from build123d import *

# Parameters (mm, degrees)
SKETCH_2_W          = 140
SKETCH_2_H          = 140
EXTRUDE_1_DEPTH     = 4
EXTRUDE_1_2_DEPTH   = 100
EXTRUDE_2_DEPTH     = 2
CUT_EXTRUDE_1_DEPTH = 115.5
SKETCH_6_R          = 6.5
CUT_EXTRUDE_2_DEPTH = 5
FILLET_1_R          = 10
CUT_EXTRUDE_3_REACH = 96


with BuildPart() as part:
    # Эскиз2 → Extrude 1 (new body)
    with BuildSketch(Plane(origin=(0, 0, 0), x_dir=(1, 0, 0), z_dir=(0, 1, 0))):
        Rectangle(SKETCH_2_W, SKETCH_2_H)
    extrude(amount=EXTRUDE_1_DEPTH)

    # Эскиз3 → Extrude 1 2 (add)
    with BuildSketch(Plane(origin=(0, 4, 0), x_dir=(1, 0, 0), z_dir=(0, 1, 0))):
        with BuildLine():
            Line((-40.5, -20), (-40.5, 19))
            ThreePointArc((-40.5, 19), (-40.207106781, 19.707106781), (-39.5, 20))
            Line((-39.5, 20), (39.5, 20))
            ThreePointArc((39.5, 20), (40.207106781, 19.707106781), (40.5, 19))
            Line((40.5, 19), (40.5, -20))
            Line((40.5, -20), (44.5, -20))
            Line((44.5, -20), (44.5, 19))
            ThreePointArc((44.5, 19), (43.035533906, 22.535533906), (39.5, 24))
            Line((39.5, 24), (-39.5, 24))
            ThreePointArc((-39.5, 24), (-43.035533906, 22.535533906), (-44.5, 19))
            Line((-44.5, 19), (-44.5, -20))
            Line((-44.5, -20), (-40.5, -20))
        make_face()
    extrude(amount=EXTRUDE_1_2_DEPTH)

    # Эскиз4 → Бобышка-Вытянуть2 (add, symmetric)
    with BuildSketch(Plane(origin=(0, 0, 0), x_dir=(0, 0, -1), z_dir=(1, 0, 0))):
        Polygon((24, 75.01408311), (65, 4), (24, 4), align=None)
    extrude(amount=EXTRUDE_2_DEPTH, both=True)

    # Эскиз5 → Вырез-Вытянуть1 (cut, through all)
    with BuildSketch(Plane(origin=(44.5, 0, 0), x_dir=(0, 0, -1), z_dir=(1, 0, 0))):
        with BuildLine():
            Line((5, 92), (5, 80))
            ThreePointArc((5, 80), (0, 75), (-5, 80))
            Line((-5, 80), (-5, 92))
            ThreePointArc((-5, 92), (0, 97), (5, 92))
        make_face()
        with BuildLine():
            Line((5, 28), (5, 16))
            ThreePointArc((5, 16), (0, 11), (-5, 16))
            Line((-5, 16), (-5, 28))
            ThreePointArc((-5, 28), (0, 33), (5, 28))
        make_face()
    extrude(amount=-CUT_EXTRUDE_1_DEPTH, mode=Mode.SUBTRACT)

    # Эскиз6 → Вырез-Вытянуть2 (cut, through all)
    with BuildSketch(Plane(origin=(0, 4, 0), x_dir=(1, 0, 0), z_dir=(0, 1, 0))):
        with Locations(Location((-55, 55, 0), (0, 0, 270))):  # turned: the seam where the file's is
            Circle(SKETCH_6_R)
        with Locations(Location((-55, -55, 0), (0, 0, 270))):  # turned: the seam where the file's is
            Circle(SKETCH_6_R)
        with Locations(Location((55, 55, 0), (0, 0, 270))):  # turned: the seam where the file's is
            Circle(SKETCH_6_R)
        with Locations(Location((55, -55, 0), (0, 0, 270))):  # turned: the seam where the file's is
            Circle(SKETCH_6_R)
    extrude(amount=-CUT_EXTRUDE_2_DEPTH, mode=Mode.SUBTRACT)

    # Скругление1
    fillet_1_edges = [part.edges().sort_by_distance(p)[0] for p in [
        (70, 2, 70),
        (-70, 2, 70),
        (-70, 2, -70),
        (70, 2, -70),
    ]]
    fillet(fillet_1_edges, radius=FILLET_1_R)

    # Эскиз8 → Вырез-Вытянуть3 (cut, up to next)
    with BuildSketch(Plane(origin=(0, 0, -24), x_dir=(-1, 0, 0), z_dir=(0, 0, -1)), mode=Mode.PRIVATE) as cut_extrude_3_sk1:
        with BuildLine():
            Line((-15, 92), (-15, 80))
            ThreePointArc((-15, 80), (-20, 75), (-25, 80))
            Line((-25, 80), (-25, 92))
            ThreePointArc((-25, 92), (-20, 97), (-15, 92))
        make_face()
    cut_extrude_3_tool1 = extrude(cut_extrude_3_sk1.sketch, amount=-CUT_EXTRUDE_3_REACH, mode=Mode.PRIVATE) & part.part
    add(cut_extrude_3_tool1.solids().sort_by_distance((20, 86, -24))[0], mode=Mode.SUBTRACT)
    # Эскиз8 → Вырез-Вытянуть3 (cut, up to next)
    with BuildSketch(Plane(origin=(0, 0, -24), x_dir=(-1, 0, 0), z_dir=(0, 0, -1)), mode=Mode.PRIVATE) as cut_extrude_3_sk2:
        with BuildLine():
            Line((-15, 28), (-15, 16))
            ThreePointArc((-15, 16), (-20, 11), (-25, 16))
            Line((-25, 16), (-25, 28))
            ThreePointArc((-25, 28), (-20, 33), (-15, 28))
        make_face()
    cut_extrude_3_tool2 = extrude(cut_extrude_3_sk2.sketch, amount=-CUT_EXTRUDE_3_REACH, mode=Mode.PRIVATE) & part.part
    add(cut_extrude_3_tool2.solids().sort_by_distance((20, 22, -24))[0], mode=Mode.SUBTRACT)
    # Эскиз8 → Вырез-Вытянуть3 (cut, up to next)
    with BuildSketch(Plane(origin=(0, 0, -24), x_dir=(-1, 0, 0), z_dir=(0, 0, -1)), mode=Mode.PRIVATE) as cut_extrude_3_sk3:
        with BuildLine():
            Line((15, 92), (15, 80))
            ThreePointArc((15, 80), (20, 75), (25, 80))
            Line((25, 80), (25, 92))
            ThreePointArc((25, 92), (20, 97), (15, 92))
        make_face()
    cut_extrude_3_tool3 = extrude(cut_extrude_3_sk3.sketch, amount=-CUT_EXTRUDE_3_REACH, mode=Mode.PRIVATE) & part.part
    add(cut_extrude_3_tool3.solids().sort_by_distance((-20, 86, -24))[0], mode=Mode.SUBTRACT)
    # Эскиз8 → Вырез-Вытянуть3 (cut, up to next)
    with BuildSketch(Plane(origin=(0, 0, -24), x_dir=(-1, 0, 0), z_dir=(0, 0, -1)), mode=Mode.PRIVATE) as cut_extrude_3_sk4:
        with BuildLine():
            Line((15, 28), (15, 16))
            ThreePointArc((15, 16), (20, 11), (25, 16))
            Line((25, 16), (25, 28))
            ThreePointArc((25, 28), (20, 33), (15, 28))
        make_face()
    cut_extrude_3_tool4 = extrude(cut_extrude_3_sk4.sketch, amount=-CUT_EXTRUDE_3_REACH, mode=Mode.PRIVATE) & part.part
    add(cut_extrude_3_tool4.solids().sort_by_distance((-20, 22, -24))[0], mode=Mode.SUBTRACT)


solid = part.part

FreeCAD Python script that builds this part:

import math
import FreeCAD as App
import Part
import Sketcher
Q = App.Units.Quantity


def edges_at(feature, points):
    """Names of the edges that pass closest to the given points."""
    edges = feature.Shape.Edges
    near = lambda p: min(range(len(edges)), key=lambda i: edges[i].distToShape(Part.Vertex(*p))[0])
    return sorted({f"Edge{near(p) + 1}" for p in points})

doc = App.newDocument("Part")
body = doc.addObject("PartDesign::Body", "Body")

sketch1 = body.newObject("Sketcher::SketchObject", "Sketch")
sketch1.AttachmentSupport = (doc.getObject("XZ_Plane"), [""])
sketch1.MapMode = "FlatFace"
sketch1.addGeometry([
    Part.LineSegment(App.Vector(-70, -70, 0), App.Vector(-70, 70, 0)),
    Part.LineSegment(App.Vector(-70, 70, 0), App.Vector(70, 70, 0)),
    Part.LineSegment(App.Vector(70, 70, 0), App.Vector(70, -70, 0)),
    Part.LineSegment(App.Vector(70, -70, 0), App.Vector(-70, -70, 0)),
], False)
sketch1.addConstraint([
    Sketcher.Constraint("Coincident", 0, 2, 1, 1),
    Sketcher.Constraint("Coincident", 1, 2, 2, 1),
    Sketcher.Constraint("Coincident", 2, 2, 3, 1),
    Sketcher.Constraint("Coincident", 3, 2, 0, 1),
    Sketcher.Constraint("Vertical", 0),
    Sketcher.Constraint("Horizontal", 1),
    Sketcher.Constraint("Vertical", 2),
    Sketcher.Constraint("Horizontal", 3),
    Sketcher.Constraint("Symmetric", 0, 2, 2, 2, -1, 1),
    Sketcher.Constraint("Equal", 3, 0),
    Sketcher.Constraint("DistanceX", 1, 1, 1, 2, 140.0),
])
pad1 = body.newObject("PartDesign::Pad", "Pad")
pad1.Profile = sketch1
pad1.Length = 4
pad1.Reversed = True

sketch2 = body.newObject("Sketcher::SketchObject", "Sketch001")
sketch2.AttachmentSupport = (doc.getObject("XZ_Plane"), [""])
sketch2.MapMode = "FlatFace"
sketch2.AttachmentOffset = App.Placement(App.Vector(0, 0, -4), App.Rotation())
sketch2.addGeometry([
    Part.LineSegment(App.Vector(-40.5, 20, 0), App.Vector(-40.5, -19, 0)),
    Part.ArcOfCircle(Part.Circle(App.Vector(-39.5, -19, 0), App.Vector(0, 0, 1), 1), math.radians(-180), math.radians(-90)),
    Part.LineSegment(App.Vector(-39.5, -20, 0), App.Vector(39.5, -20, 0)),
    Part.ArcOfCircle(Part.Circle(App.Vector(39.5, -19, 0), App.Vector(0, 0, 1), 1), math.radians(-90), math.radians(0)),
    Part.LineSegment(App.Vector(40.5, -19, 0), App.Vector(40.5, 20, 0)),
    Part.LineSegment(App.Vector(40.5, 20, 0), App.Vector(44.5, 20, 0)),
    Part.LineSegment(App.Vector(44.5, 20, 0), App.Vector(44.5, -19, 0)),
    Part.ArcOfCircle(Part.Circle(App.Vector(39.5, -19, 0), App.Vector(0, 0, 1), 5), math.radians(-90), math.radians(0)),
    Part.LineSegment(App.Vector(39.5, -24, 0), App.Vector(-39.5, -24, 0)),
    Part.ArcOfCircle(Part.Circle(App.Vector(-39.5, -19, 0), App.Vector(0, 0, 1), 5), math.radians(180), math.radians(270)),
    Part.LineSegment(App.Vector(-44.5, -19, 0), App.Vector(-44.5, 20, 0)),
    Part.LineSegment(App.Vector(-44.5, 20, 0), App.Vector(-40.5, 20, 0)),
], False)
sketch2.addConstraint([
    Sketcher.Constraint("Tangent", 0, 2, 1, 1),
    Sketcher.Constraint("Tangent", 1, 2, 2, 1),
    Sketcher.Constraint("Tangent", 2, 2, 3, 1),
    Sketcher.Constraint("Tangent", 3, 2, 4, 1),
    Sketcher.Constraint("Coincident", 4, 2, 5, 1),
    Sketcher.Constraint("Coincident", 5, 2, 6, 1),
    Sketcher.Constraint("Tangent", 6, 2, 7, 2),
    Sketcher.Constraint("Tangent", 7, 1, 8, 1),
    Sketcher.Constraint("Tangent", 8, 2, 9, 2),
    Sketcher.Constraint("Tangent", 9, 1, 10, 1),
    Sketcher.Constraint("Coincident", 10, 2, 11, 1),
    Sketcher.Constraint("Coincident", 11, 2, 0, 1),
    Sketcher.Constraint("Vertical", 0),
    Sketcher.Constraint("Horizontal", 2),
    Sketcher.Constraint("Vertical", 4),
    Sketcher.Constraint("Horizontal", 5),
    Sketcher.Constraint("Vertical", 6),
    Sketcher.Constraint("Horizontal", 8),
    Sketcher.Constraint("Vertical", 10),
    Sketcher.Constraint("Horizontal", 11),
    Sketcher.Constraint("Coincident", 7, 3, 3, 3),
    Sketcher.Constraint("Coincident", 9, 3, 1, 3),
    Sketcher.Constraint("Equal", 1, 3),
    Sketcher.Constraint("Symmetric", 5, 2, 10, 2, -2),
    Sketcher.Constraint("Radius", 1, 1.0),
    Sketcher.Constraint("Radius", 7, 5.0),
    Sketcher.Constraint("DistanceX", 2, 1, 2, 2, 79.0),
    Sketcher.Constraint("DistanceY", 0, 2, 0, 1, 39.0),
    Sketcher.Constraint("DistanceY", 1, 3, -1, 1, 19.0),
])
pad2 = body.newObject("PartDesign::Pad", "Pad001")
pad2.Profile = sketch2
pad2.Length = 100
pad2.Reversed = True

sketch3 = body.newObject("Sketcher::SketchObject", "Sketch002")
sketch3.AttachmentSupport = (doc.getObject("YZ_Plane"), [""])
sketch3.MapMode = "FlatFace"
sketch3.addGeometry([
    Part.LineSegment(App.Vector(4, -65, 0), App.Vector(75, -24, 0)),
    Part.LineSegment(App.Vector(75, -24, 0), App.Vector(4, -24, 0)),
    Part.LineSegment(App.Vector(4, -24, 0), App.Vector(4, -65, 0)),
], False)
sketch3.addConstraint([
    Sketcher.Constraint("Coincident", 0, 2, 1, 1),
    Sketcher.Constraint("Coincident", 1, 2, 2, 1),
    Sketcher.Constraint("Coincident", 2, 2, 0, 1),
    Sketcher.Constraint("Horizontal", 1),
    Sketcher.Constraint("Vertical", 2),
    Sketcher.Constraint("DistanceY", 2, 2, 2, 1, 41.0),
    Sketcher.Constraint("Angle", 0, Q("30 deg")),
    Sketcher.Constraint("DistanceY", 0, 2, -1, 1, 24.0),
    Sketcher.Constraint("DistanceX", -1, 1, 1, 2, 4.0),
])
pad3 = body.newObject("PartDesign::Pad", "Pad002")
pad3.Profile = sketch3
pad3.Length = 4
pad3.Midplane = True

sketch4 = body.newObject("Sketcher::SketchObject", "Sketch003")
sketch4.AttachmentSupport = (doc.getObject("YZ_Plane"), [""])
sketch4.MapMode = "FlatFace"
sketch4.AttachmentOffset = App.Placement(App.Vector(0, 0, 44.5), App.Rotation())
sketch4.addGeometry([
    Part.LineSegment(App.Vector(80, -5, 0), App.Vector(92, -5, 0)),
    Part.ArcOfCircle(Part.Circle(App.Vector(92, 0, 0), App.Vector(0, 0, 1), 5), math.radians(-90), math.radians(90)),
    Part.LineSegment(App.Vector(92, 5, 0), App.Vector(80, 5, 0)),
    Part.ArcOfCircle(Part.Circle(App.Vector(80, 0, 0), App.Vector(0, 0, 1), 5), math.radians(90), math.radians(270)),
    Part.LineSegment(App.Vector(16, -5, 0), App.Vector(28, -5, 0)),
    Part.ArcOfCircle(Part.Circle(App.Vector(28, 0, 0), App.Vector(0, 0, 1), 5), math.radians(-90), math.radians(90)),
    Part.LineSegment(App.Vector(28, 5, 0), App.Vector(16, 5, 0)),
    Part.ArcOfCircle(Part.Circle(App.Vector(16, 0, 0), App.Vector(0, 0, 1), 5), math.radians(90), math.radians(270)),
], False)
sketch4.addConstraint([
    Sketcher.Constraint("Tangent", 0, 2, 1, 1),
    Sketcher.Constraint("Tangent", 1, 2, 2, 1),
    Sketcher.Constraint("Tangent", 2, 2, 3, 1),
    Sketcher.Constraint("Tangent", 3, 2, 0, 1),
    Sketcher.Constraint("Tangent", 4, 2, 5, 1),
    Sketcher.Constraint("Tangent", 5, 2, 6, 1),
    Sketcher.Constraint("Tangent", 6, 2, 7, 1),
    Sketcher.Constraint("Tangent", 7, 2, 4, 1),
    Sketcher.Constraint("Horizontal", 0),
    Sketcher.Constraint("Horizontal", 2),
    Sketcher.Constraint("Horizontal", 4),
    Sketcher.Constraint("Horizontal", 6),
    Sketcher.Constraint("Equal", 3, 5),
    Sketcher.Constraint("PointOnObject", 1, 3, -1),
    Sketcher.Constraint("PointOnObject", 5, 3, -1),
    Sketcher.Constraint("Equal", 2, 4),
    Sketcher.Constraint("Radius", 1, 5.0),
    Sketcher.Constraint("DistanceX", 0, 1, 0, 2, 12.0),
    Sketcher.Constraint("DistanceX", -1, 1, 1, 3, 92.0),
    Sketcher.Constraint("DistanceX", -1, 1, 5, 3, 28.0),
])
pocket1 = body.newObject("PartDesign::Pocket", "Pocket")
pocket1.Profile = sketch4
pocket1.Type = "ThroughAll"

sketch5 = body.newObject("Sketcher::SketchObject", "Sketch004")
sketch5.AttachmentSupport = (doc.getObject("XZ_Plane"), [""])
sketch5.MapMode = "FlatFace"
sketch5.AttachmentOffset = App.Placement(App.Vector(0, 0, -4), App.Rotation())
sketch5.addGeometry([
    Part.Circle(App.Vector(-55, -55, 0), App.Vector(0, 0, 1), 6),
    Part.Circle(App.Vector(-55, 55, 0), App.Vector(0, 0, 1), 6),
    Part.Circle(App.Vector(55, -55, 0), App.Vector(0, 0, 1), 6),
    Part.Circle(App.Vector(55, 55, 0), App.Vector(0, 0, 1), 6),
], False)
sketch5.addConstraint([
    Sketcher.Constraint("Equal", 0, 1),
    Sketcher.Constraint("Equal", 1, 2),
    Sketcher.Constraint("Equal", 2, 3),
    Sketcher.Constraint("Symmetric", 1, 3, 2, 3, -1, 1),
    Sketcher.Constraint("Symmetric", 0, 3, 3, 3, -1, 1),
    Sketcher.Constraint("Symmetric", 0, 3, 2, 3, -2),
    Sketcher.Constraint("Diameter", 0, 13.0),
    Sketcher.Constraint("DistanceX", 0, 3, -1, 1, 55.0),
    Sketcher.Constraint("DistanceY", 0, 3, -1, 1, 55.0),
])
pocket2 = body.newObject("PartDesign::Pocket", "Pocket001")
pocket2.Profile = sketch5
pocket2.Type = "ThroughAll"
pocket2.Reversed = True
doc.recompute()

fillet = body.newObject("PartDesign::Fillet", "Fillet")
fillet.Base = (pocket2, edges_at(pocket2, [
    (70, 2, 70),
    (-70, 2, 70),
    (-70, 2, -70),
    (70, 2, -70),
]))
fillet.Radius = 10

sketch6 = body.newObject("Sketcher::SketchObject", "Sketch005")
sketch6.AttachmentSupport = (doc.getObject("XY_Plane"), [""])
sketch6.MapMode = "FlatFace"
sketch6.AttachmentOffset = App.Placement(App.Vector(0, 0, -24), App.Rotation())
sketch6.addGeometry([
    Part.LineSegment(App.Vector(15, 80, 0), App.Vector(15, 92, 0)),
    Part.ArcOfCircle(Part.Circle(App.Vector(20, 92, 0), App.Vector(0, 0, 1), 5), math.radians(0), math.radians(180)),
    Part.LineSegment(App.Vector(25, 92, 0), App.Vector(25, 80, 0)),
    Part.ArcOfCircle(Part.Circle(App.Vector(20, 80, 0), App.Vector(0, 0, 1), 5), math.radians(180), math.radians(360)),
], False)
sketch6.addConstraint([
    Sketcher.Constraint("Tangent", 0, 2, 1, 2),
    Sketcher.Constraint("Tangent", 1, 1, 2, 1),
    Sketcher.Constraint("Tangent", 2, 2, 3, 2),
    Sketcher.Constraint("Tangent", 3, 1, 0, 1),
    Sketcher.Constraint("Vertical", 0),
    Sketcher.Constraint("Vertical", 2),
    Sketcher.Constraint("Radius", 1, 5.0),
    Sketcher.Constraint("DistanceY", 0, 1, 0, 2, 12.0),
    Sketcher.Constraint("DistanceX", -1, 1, 1, 3, 20.0),
    Sketcher.Constraint("DistanceY", -1, 1, 1, 3, 92.0),
])
pocket3 = body.newObject("PartDesign::Pocket", "Pocket002")
pocket3.Profile = sketch6
pocket3.Type = "UpToFirst"
pocket3.Reversed = True

sketch7 = body.newObject("Sketcher::SketchObject", "Sketch006")
sketch7.AttachmentSupport = (doc.getObject("XY_Plane"), [""])
sketch7.MapMode = "FlatFace"
sketch7.AttachmentOffset = App.Placement(App.Vector(0, 0, -24), App.Rotation())
sketch7.addGeometry([
    Part.LineSegment(App.Vector(15, 16, 0), App.Vector(15, 28, 0)),
    Part.ArcOfCircle(Part.Circle(App.Vector(20, 28, 0), App.Vector(0, 0, 1), 5), math.radians(0), math.radians(180)),
    Part.LineSegment(App.Vector(25, 28, 0), App.Vector(25, 16, 0)),
    Part.ArcOfCircle(Part.Circle(App.Vector(20, 16, 0), App.Vector(0, 0, 1), 5), math.radians(180), math.radians(360)),
], False)
sketch7.addConstraint([
    Sketcher.Constraint("Tangent", 0, 2, 1, 2),
    Sketcher.Constraint("Tangent", 1, 1, 2, 1),
    Sketcher.Constraint("Tangent", 2, 2, 3, 2),
    Sketcher.Constraint("Tangent", 3, 1, 0, 1),
    Sketcher.Constraint("Vertical", 0),
    Sketcher.Constraint("Vertical", 2),
    Sketcher.Constraint("Radius", 1, 5.0),
    Sketcher.Constraint("DistanceY", 0, 1, 0, 2, 12.0),
    Sketcher.Constraint("DistanceX", -1, 1, 1, 3, 20.0),
    Sketcher.Constraint("DistanceY", -1, 1, 1, 3, 28.0),
])
pocket4 = body.newObject("PartDesign::Pocket", "Pocket003")
pocket4.Profile = sketch7
pocket4.Type = "UpToFirst"
pocket4.Reversed = True

sketch8 = body.newObject("Sketcher::SketchObject", "Sketch007")
sketch8.AttachmentSupport = (doc.getObject("XY_Plane"), [""])
sketch8.MapMode = "FlatFace"
sketch8.AttachmentOffset = App.Placement(App.Vector(0, 0, -24), App.Rotation())
sketch8.addGeometry([
    Part.LineSegment(App.Vector(-15, 92, 0), App.Vector(-15, 80, 0)),
    Part.ArcOfCircle(Part.Circle(App.Vector(-20, 80, 0), App.Vector(0, 0, 1), 5), math.radians(180), math.radians(360)),
    Part.LineSegment(App.Vector(-25, 80, 0), App.Vector(-25, 92, 0)),
    Part.ArcOfCircle(Part.Circle(App.Vector(-20, 92, 0), App.Vector(0, 0, 1), 5), math.radians(0), math.radians(180)),
], False)
sketch8.addConstraint([
    Sketcher.Constraint("Tangent", 0, 2, 1, 2),
    Sketcher.Constraint("Tangent", 1, 1, 2, 1),
    Sketcher.Constraint("Tangent", 2, 2, 3, 2),
    Sketcher.Constraint("Tangent", 3, 1, 0, 1),
    Sketcher.Constraint("Vertical", 0),
    Sketcher.Constraint("Vertical", 2),
    Sketcher.Constraint("Radius", 1, 5.0),
    Sketcher.Constraint("DistanceY", 0, 2, 0, 1, 12.0),
    Sketcher.Constraint("DistanceX", 1, 3, -1, 1, 20.0),
    Sketcher.Constraint("DistanceY", -1, 1, 1, 3, 80.0),
])
pocket5 = body.newObject("PartDesign::Pocket", "Pocket004")
pocket5.Profile = sketch8
pocket5.Type = "UpToFirst"
pocket5.Reversed = True

sketch9 = body.newObject("Sketcher::SketchObject", "Sketch008")
sketch9.AttachmentSupport = (doc.getObject("XY_Plane"), [""])
sketch9.MapMode = "FlatFace"
sketch9.AttachmentOffset = App.Placement(App.Vector(0, 0, -24), App.Rotation())
sketch9.addGeometry([
    Part.LineSegment(App.Vector(-15, 28, 0), App.Vector(-15, 16, 0)),
    Part.ArcOfCircle(Part.Circle(App.Vector(-20, 16, 0), App.Vector(0, 0, 1), 5), math.radians(180), math.radians(360)),
    Part.LineSegment(App.Vector(-25, 16, 0), App.Vector(-25, 28, 0)),
    Part.ArcOfCircle(Part.Circle(App.Vector(-20, 28, 0), App.Vector(0, 0, 1), 5), math.radians(0), math.radians(180)),
], False)
sketch9.addConstraint([
    Sketcher.Constraint("Tangent", 0, 2, 1, 2),
    Sketcher.Constraint("Tangent", 1, 1, 2, 1),
    Sketcher.Constraint("Tangent", 2, 2, 3, 2),
    Sketcher.Constraint("Tangent", 3, 1, 0, 1),
    Sketcher.Constraint("Vertical", 0),
    Sketcher.Constraint("Vertical", 2),
    Sketcher.Constraint("Radius", 1, 5.0),
    Sketcher.Constraint("DistanceY", 0, 2, 0, 1, 12.0),
    Sketcher.Constraint("DistanceX", 1, 3, -1, 1, 20.0),
    Sketcher.Constraint("DistanceY", -1, 1, 1, 3, 16.0),
])
pocket6 = body.newObject("PartDesign::Pocket", "Pocket005")
pocket6.Profile = sketch9
pocket6.Type = "UpToFirst"
pocket6.Reversed = True

doc.recompute()
